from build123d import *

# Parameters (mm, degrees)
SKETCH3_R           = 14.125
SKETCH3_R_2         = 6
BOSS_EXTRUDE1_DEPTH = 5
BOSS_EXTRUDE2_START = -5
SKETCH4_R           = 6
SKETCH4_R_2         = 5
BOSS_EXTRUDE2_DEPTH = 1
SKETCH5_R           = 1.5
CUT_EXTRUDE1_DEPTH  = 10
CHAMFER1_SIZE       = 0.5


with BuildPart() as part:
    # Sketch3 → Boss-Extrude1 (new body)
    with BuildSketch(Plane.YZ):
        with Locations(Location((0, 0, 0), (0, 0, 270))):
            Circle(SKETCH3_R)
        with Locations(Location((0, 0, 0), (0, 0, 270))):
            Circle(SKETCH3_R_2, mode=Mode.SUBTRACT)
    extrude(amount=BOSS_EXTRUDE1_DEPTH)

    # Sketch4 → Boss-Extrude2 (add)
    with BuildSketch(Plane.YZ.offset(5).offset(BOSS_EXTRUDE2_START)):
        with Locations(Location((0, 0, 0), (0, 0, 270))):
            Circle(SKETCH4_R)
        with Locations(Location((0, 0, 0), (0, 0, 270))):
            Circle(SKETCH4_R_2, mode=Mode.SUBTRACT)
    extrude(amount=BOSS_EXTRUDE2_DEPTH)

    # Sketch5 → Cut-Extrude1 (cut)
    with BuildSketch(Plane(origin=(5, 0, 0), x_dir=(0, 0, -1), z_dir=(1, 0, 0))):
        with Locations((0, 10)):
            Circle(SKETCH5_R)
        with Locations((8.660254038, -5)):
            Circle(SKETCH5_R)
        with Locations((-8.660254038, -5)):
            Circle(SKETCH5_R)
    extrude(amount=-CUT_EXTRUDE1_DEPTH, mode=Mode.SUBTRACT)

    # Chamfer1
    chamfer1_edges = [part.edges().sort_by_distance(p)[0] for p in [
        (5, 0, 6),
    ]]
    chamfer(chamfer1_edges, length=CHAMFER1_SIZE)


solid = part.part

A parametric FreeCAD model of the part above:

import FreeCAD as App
import Part
import Sketcher
Q = App.Units.Quantity


def edges_at(feature, points):
    """Names of the edges that pass closest to the given points."""
    edges = feature.Shape.Edges
    near = lambda p: min(range(len(edges)), key=lambda i: edges[i].distToShape(Part.Vertex(*p))[0])
    return sorted({f"Edge{near(p) + 1}" for p in points})

doc = App.newDocument("Part")
body = doc.addObject("PartDesign::Body", "Body")

# Sketch on YZ plane
sketch1 = body.newObject("Sketcher::SketchObject", "Sketch")
sketch1.AttachmentSupport = (doc.getObject("YZ_Plane"), [""])
sketch1.MapMode = "FlatFace"
sketch1.addGeometry(Part.Circle(App.Vector(0, 0, 0), App.Vector(0, 0, 1), 14.125), False)
sketch1.addGeometry(Part.Circle(App.Vector(0, 0, 0), App.Vector(0, 0, 1), 6), False)
sketch1.addConstraint(Sketcher.Constraint("Coincident", 0, 3, -1, 1))
sketch1.addConstraint(Sketcher.Constraint("Coincident", 1, 3, -1, 1))
sketch1.addConstraint(Sketcher.Constraint("Diameter", 1, Q("12 mm")))
sketch1.addConstraint(Sketcher.Constraint("Diameter", 0, Q("28.25 mm")))
pad1 = body.newObject("PartDesign::Pad", "Pad")
pad1.Profile = sketch1
pad1.Length = 5

# Sketch on YZ plane
sketch2 = body.newObject("Sketcher::SketchObject", "Sketch001")
sketch2.AttachmentSupport = (doc.getObject("YZ_Plane"), [""])
sketch2.MapMode = "FlatFace"
sketch2.addGeometry(Part.Circle(App.Vector(0, 0, 0), App.Vector(0, 0, 1), 6), False)
sketch2.addGeometry(Part.Circle(App.Vector(0, 0, 0), App.Vector(0, 0, 1), 5), False)
sketch2.addConstraint(Sketcher.Constraint("Coincident", 0, 3, -1, 1))
sketch2.addConstraint(Sketcher.Constraint("Coincident", 1, 3, -1, 1))
sketch2.addConstraint(Sketcher.Constraint("Diameter", 0, Q("12 mm")))
sketch2.addConstraint(Sketcher.Constraint("Diameter", 1, Q("10 mm")))
pad2 = body.newObject("PartDesign::Pad", "Pad001")
pad2.Profile = sketch2
pad2.Length = 1

# Sketch on YZ plane
sketch3 = body.newObject("Sketcher::SketchObject", "Sketch002")
sketch3.AttachmentSupport = (doc.getObject("YZ_Plane"), [""])
sketch3.MapMode = "FlatFace"
sketch3.AttachmentOffset = App.Placement(App.Vector(0, 0, 5), App.Rotation())
sketch3.addGeometry(Part.Circle(App.Vector(10, 0, 0), App.Vector(0, 0, 1), 1.5), False)
sketch3.addGeometry(Part.Circle(App.Vector(-5, -8.660254, 0), App.Vector(0, 0, 1), 1.5), False)
sketch3.addGeometry(Part.Circle(App.Vector(-5, 8.660254, 0), App.Vector(0, 0, 1), 1.5), False)
sketch3.addConstraint(Sketcher.Constraint("Equal", 0, 1))
sketch3.addConstraint(Sketcher.Constraint("Equal", 1, 2))
sketch3.addConstraint(Sketcher.Constraint("Symmetric", 1, 3, 2, 3, -1))
sketch3.addConstraint(Sketcher.Constraint("PointOnObject", 0, 3, -1))
sketch3.addConstraint(Sketcher.Constraint("Diameter", 0, Q("3 mm")))
sketch3.addConstraint(Sketcher.Constraint("DistanceX", -1, 1, 0, 3, Q("10 mm")))
sketch3.addConstraint(Sketcher.Constraint("DistanceX", 1, 3, -1, 1, Q("5 mm")))
sketch3.addConstraint(Sketcher.Constraint("DistanceY", 1, 3, 2, 3, Q("17.320508 mm")))
pocket1 = body.newObject("PartDesign::Pocket", "Pocket")
pocket1.Profile = sketch3
pocket1.Length = 10
doc.recompute()

chamfer = body.newObject("PartDesign::Chamfer", "Chamfer")
chamfer.Base = (pocket1, edges_at(pocket1, [(5, 0, 6)]))
chamfer.Size = 0.5

doc.recompute()
